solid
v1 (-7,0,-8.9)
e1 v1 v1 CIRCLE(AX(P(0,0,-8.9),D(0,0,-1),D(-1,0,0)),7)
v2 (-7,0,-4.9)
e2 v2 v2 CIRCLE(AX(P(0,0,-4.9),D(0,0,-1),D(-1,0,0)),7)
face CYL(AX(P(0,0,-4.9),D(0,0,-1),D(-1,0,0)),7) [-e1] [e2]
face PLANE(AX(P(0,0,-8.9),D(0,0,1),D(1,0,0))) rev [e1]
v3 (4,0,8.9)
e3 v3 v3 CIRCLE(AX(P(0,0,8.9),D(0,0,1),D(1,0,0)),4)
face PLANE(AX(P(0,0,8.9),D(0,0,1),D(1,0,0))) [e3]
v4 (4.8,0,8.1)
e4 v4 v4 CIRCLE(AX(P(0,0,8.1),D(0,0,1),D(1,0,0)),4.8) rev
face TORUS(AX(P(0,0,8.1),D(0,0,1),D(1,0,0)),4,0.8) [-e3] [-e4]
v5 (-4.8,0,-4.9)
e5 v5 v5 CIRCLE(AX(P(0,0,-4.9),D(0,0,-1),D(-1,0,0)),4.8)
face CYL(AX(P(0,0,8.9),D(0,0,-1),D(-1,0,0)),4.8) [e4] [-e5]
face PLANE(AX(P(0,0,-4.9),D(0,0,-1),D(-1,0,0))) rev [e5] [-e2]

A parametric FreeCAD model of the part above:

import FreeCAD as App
import Part
import Sketcher
from FreeCAD import Vector
Q = App.Units.Quantity


def edges_at(feature, points):
    """Names of the edges that pass closest to the given points."""
    edges = feature.Shape.Edges
    near = lambda p: min(range(len(edges)), key=lambda i: edges[i].distToShape(Part.Vertex(*p))[0])
    return sorted({f"Edge{near(p) + 1}" for p in points})

doc = App.newDocument("Part")
params = doc.addObject("Spreadsheet::Sheet", "Params")
for row, (alias, value) in enumerate([
    ("sketch1_diameter", "9.6 mm"),
    ("pad1_length", "17.8 mm"),
    ("fillet_radius", "0.8 mm"),
    ("sketch2_diameter", "14 mm"),
    ("pad2_length", "4 mm"),
], start=1):
    params.set(f"A{row}", alias)
    params.set(f"B{row}", "=" + value)
    params.setAlias(f"B{row}", alias)

body = doc.addObject("PartDesign::Body", "Body")

# Sketch on XY plane
sketch1 = doc.addObject("Sketcher::SketchObject", "Sketch")
body.addObject(sketch1)
sketch1.AttachmentSupport = (doc.XY_Plane, [""])
sketch1.MapMode = "FlatFace"
sketch1.addGeometry(Part.Circle(Vector(0, 0, 0), Vector(0, 0, 1), 4.8), False)
sketch1.addConstraint([
    Sketcher.Constraint("Coincident", 0, 3, -1, 1),
    Sketcher.Constraint("Diameter", 0, Q("9.6 mm")),
])
sketch1.setExpression("Constraints[1]", "Params.sketch1_diameter")
pad1 = doc.addObject("PartDesign::Pad", "Pad")
body.addObject(pad1)
pad1.Profile = sketch1
pad1.setExpression("Length", "Params.pad1_length")
pad1.Midplane = True
doc.recompute()

fillet = doc.addObject("PartDesign::Fillet", "Fillet")
body.addObject(fillet)
fillet.Base = (pad1, edges_at(pad1, [(-4.8, 0, 8.9)]))
fillet.setExpression("Radius", "Params.fillet_radius")

# Sketch on XY plane
sketch2 = doc.addObject("Sketcher::SketchObject", "Sketch001")
body.addObject(sketch2)
sketch2.AttachmentSupport = (doc.XY_Plane, [""])
sketch2.MapMode = "FlatFace"
sketch2.AttachmentOffset = App.Placement(Vector(0, 0, -8.9), App.Rotation())
sketch2.addGeometry(Part.Circle(Vector(0, 0, 0), Vector(0, 0, 1), 7), False)
sketch2.addConstraint([
    Sketcher.Constraint("Coincident", 0, 3, -1, 1),
    Sketcher.Constraint("Diameter", 0, Q("14 mm")),
])
sketch2.setExpression("Constraints[1]", "Params.sketch2_diameter")
pad2 = doc.addObject("PartDesign::Pad", "Pad001")
body.addObject(pad2)
pad2.Profile = sketch2
pad2.setExpression("Length", "Params.pad2_length")

doc.recompute()
